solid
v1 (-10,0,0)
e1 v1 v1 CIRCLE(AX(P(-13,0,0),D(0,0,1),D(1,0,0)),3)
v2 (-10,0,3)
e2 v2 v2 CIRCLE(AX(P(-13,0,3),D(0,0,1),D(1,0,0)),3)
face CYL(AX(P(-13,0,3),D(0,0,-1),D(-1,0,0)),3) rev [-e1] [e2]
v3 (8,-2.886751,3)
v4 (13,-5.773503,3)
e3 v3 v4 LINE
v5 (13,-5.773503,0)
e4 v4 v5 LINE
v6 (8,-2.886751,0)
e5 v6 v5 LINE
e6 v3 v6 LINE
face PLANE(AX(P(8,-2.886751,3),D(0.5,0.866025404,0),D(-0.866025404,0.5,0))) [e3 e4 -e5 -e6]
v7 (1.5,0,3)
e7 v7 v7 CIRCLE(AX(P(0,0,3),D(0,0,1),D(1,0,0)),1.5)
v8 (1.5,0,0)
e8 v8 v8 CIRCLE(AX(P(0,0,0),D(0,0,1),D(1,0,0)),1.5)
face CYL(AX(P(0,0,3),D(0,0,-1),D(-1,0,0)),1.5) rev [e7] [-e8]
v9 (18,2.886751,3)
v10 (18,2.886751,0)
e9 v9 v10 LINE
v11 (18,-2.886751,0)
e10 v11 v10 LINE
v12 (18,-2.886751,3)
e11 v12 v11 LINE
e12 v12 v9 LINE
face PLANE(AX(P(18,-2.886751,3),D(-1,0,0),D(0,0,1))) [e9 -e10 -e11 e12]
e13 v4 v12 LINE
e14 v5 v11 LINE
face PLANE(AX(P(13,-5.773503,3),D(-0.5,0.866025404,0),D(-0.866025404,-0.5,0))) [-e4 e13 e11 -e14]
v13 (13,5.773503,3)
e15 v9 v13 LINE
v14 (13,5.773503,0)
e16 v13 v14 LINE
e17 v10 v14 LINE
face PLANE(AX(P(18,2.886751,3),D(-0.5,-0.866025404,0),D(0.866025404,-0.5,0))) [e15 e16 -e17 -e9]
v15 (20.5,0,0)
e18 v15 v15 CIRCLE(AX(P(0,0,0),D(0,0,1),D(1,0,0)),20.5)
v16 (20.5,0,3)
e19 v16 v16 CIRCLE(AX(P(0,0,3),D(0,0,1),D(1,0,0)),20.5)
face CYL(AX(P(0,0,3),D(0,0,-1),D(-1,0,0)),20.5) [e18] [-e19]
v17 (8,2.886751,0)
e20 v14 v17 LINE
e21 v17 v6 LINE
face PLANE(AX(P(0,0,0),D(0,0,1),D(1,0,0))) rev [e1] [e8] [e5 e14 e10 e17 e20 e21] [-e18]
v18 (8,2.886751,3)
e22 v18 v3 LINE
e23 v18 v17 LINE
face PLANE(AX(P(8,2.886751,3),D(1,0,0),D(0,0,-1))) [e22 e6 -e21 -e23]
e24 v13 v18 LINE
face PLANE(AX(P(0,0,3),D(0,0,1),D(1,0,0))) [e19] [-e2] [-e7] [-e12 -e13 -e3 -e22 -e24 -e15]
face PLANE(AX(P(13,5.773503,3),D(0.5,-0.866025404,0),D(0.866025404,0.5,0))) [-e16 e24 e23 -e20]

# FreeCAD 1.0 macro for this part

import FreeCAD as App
import Part
import Sketcher
Q = App.Units.Quantity


def add_polygon(sketch, points):
    """Adds a closed chain of lines whose ends are joined by coincident constraints."""
    first, n = sketch.GeometryCount, len(points)
    for a, b in zip(points, points[1:] + points[:1]):
        sketch.addGeometry(Part.LineSegment(App.Vector(*a, 0), App.Vector(*b, 0)), False)
    for i in range(n):
        sketch.addConstraint(Sketcher.Constraint("Coincident", first + i, 2, first + (i + 1) % n, 1))

doc = App.newDocument("Part")
body = doc.addObject("PartDesign::Body", "Body")

sketch1 = body.newObject("Sketcher::SketchObject", "Sketch")
sketch1.AttachmentSupport = (doc.getObject("XY_Plane"), [""])
sketch1.MapMode = "FlatFace"
sketch1.addGeometry(Part.Circle(App.Vector(0, 0, 0), App.Vector(0, 0, 1), 20.5), False)
sketch1.addGeometry(Part.Circle(App.Vector(-13, 0, 0), App.Vector(0, 0, 1), 3), False)
sketch1.addGeometry(Part.Circle(App.Vector(0, 0, 0), App.Vector(0, 0, 1), 1.5), False)
add_polygon(sketch1, [(13, 5.8), (18, 2.9), (18, -2.9), (13, -5.8), (8, -2.9), (8, 2.9)])
sketch1.addConstraint(Sketcher.Constraint("Vertical", 4))
sketch1.addConstraint(Sketcher.Constraint("Vertical", 7))
sketch1.addConstraint(Sketcher.Constraint("Coincident", 0, 3, -1, 1))
sketch1.addConstraint(Sketcher.Constraint("Coincident", 2, 3, -1, 1))
sketch1.addConstraint(Sketcher.Constraint("Symmetric", 5, 2, 8, 2, -1))
sketch1.addConstraint(Sketcher.Constraint("PointOnObject", 1, 3, -1))
sketch1.addConstraint(Sketcher.Constraint("Parallel", 3, 6))
sketch1.addConstraint(Sketcher.Constraint("Parallel", 5, 8))
sketch1.addConstraint(Sketcher.Constraint("Horizontal", 4, 2, 6, 2))
sketch1.addConstraint(Sketcher.Constraint("Horizontal", 3, 2, 7, 2))
sketch1.addConstraint(Sketcher.Constraint("Diameter", 0, 41.0))
sketch1.addConstraint(Sketcher.Constraint("Diameter", 1, 6.0))
sketch1.addConstraint(Sketcher.Constraint("Diameter", 2, 3.0))
sketch1.addConstraint(Sketcher.Constraint("Angle", 3, Q("-30 deg")))
sketch1.addConstraint(Sketcher.Constraint("DistanceX", 1, 3, -1, 1, 13.0))
sketch1.addConstraint(Sketcher.Constraint("DistanceX", -1, 1, 3, 2, 18.0))
sketch1.addConstraint(Sketcher.Constraint("DistanceX", -1, 1, 5, 2, 13.0))
sketch1.addConstraint(Sketcher.Constraint("DistanceY", 4, 2, 4, 1, 5.773503))
pad1 = body.newObject("PartDesign::Pad", "Pad")
pad1.Profile = sketch1
pad1.Length = 3

doc.recompute()
